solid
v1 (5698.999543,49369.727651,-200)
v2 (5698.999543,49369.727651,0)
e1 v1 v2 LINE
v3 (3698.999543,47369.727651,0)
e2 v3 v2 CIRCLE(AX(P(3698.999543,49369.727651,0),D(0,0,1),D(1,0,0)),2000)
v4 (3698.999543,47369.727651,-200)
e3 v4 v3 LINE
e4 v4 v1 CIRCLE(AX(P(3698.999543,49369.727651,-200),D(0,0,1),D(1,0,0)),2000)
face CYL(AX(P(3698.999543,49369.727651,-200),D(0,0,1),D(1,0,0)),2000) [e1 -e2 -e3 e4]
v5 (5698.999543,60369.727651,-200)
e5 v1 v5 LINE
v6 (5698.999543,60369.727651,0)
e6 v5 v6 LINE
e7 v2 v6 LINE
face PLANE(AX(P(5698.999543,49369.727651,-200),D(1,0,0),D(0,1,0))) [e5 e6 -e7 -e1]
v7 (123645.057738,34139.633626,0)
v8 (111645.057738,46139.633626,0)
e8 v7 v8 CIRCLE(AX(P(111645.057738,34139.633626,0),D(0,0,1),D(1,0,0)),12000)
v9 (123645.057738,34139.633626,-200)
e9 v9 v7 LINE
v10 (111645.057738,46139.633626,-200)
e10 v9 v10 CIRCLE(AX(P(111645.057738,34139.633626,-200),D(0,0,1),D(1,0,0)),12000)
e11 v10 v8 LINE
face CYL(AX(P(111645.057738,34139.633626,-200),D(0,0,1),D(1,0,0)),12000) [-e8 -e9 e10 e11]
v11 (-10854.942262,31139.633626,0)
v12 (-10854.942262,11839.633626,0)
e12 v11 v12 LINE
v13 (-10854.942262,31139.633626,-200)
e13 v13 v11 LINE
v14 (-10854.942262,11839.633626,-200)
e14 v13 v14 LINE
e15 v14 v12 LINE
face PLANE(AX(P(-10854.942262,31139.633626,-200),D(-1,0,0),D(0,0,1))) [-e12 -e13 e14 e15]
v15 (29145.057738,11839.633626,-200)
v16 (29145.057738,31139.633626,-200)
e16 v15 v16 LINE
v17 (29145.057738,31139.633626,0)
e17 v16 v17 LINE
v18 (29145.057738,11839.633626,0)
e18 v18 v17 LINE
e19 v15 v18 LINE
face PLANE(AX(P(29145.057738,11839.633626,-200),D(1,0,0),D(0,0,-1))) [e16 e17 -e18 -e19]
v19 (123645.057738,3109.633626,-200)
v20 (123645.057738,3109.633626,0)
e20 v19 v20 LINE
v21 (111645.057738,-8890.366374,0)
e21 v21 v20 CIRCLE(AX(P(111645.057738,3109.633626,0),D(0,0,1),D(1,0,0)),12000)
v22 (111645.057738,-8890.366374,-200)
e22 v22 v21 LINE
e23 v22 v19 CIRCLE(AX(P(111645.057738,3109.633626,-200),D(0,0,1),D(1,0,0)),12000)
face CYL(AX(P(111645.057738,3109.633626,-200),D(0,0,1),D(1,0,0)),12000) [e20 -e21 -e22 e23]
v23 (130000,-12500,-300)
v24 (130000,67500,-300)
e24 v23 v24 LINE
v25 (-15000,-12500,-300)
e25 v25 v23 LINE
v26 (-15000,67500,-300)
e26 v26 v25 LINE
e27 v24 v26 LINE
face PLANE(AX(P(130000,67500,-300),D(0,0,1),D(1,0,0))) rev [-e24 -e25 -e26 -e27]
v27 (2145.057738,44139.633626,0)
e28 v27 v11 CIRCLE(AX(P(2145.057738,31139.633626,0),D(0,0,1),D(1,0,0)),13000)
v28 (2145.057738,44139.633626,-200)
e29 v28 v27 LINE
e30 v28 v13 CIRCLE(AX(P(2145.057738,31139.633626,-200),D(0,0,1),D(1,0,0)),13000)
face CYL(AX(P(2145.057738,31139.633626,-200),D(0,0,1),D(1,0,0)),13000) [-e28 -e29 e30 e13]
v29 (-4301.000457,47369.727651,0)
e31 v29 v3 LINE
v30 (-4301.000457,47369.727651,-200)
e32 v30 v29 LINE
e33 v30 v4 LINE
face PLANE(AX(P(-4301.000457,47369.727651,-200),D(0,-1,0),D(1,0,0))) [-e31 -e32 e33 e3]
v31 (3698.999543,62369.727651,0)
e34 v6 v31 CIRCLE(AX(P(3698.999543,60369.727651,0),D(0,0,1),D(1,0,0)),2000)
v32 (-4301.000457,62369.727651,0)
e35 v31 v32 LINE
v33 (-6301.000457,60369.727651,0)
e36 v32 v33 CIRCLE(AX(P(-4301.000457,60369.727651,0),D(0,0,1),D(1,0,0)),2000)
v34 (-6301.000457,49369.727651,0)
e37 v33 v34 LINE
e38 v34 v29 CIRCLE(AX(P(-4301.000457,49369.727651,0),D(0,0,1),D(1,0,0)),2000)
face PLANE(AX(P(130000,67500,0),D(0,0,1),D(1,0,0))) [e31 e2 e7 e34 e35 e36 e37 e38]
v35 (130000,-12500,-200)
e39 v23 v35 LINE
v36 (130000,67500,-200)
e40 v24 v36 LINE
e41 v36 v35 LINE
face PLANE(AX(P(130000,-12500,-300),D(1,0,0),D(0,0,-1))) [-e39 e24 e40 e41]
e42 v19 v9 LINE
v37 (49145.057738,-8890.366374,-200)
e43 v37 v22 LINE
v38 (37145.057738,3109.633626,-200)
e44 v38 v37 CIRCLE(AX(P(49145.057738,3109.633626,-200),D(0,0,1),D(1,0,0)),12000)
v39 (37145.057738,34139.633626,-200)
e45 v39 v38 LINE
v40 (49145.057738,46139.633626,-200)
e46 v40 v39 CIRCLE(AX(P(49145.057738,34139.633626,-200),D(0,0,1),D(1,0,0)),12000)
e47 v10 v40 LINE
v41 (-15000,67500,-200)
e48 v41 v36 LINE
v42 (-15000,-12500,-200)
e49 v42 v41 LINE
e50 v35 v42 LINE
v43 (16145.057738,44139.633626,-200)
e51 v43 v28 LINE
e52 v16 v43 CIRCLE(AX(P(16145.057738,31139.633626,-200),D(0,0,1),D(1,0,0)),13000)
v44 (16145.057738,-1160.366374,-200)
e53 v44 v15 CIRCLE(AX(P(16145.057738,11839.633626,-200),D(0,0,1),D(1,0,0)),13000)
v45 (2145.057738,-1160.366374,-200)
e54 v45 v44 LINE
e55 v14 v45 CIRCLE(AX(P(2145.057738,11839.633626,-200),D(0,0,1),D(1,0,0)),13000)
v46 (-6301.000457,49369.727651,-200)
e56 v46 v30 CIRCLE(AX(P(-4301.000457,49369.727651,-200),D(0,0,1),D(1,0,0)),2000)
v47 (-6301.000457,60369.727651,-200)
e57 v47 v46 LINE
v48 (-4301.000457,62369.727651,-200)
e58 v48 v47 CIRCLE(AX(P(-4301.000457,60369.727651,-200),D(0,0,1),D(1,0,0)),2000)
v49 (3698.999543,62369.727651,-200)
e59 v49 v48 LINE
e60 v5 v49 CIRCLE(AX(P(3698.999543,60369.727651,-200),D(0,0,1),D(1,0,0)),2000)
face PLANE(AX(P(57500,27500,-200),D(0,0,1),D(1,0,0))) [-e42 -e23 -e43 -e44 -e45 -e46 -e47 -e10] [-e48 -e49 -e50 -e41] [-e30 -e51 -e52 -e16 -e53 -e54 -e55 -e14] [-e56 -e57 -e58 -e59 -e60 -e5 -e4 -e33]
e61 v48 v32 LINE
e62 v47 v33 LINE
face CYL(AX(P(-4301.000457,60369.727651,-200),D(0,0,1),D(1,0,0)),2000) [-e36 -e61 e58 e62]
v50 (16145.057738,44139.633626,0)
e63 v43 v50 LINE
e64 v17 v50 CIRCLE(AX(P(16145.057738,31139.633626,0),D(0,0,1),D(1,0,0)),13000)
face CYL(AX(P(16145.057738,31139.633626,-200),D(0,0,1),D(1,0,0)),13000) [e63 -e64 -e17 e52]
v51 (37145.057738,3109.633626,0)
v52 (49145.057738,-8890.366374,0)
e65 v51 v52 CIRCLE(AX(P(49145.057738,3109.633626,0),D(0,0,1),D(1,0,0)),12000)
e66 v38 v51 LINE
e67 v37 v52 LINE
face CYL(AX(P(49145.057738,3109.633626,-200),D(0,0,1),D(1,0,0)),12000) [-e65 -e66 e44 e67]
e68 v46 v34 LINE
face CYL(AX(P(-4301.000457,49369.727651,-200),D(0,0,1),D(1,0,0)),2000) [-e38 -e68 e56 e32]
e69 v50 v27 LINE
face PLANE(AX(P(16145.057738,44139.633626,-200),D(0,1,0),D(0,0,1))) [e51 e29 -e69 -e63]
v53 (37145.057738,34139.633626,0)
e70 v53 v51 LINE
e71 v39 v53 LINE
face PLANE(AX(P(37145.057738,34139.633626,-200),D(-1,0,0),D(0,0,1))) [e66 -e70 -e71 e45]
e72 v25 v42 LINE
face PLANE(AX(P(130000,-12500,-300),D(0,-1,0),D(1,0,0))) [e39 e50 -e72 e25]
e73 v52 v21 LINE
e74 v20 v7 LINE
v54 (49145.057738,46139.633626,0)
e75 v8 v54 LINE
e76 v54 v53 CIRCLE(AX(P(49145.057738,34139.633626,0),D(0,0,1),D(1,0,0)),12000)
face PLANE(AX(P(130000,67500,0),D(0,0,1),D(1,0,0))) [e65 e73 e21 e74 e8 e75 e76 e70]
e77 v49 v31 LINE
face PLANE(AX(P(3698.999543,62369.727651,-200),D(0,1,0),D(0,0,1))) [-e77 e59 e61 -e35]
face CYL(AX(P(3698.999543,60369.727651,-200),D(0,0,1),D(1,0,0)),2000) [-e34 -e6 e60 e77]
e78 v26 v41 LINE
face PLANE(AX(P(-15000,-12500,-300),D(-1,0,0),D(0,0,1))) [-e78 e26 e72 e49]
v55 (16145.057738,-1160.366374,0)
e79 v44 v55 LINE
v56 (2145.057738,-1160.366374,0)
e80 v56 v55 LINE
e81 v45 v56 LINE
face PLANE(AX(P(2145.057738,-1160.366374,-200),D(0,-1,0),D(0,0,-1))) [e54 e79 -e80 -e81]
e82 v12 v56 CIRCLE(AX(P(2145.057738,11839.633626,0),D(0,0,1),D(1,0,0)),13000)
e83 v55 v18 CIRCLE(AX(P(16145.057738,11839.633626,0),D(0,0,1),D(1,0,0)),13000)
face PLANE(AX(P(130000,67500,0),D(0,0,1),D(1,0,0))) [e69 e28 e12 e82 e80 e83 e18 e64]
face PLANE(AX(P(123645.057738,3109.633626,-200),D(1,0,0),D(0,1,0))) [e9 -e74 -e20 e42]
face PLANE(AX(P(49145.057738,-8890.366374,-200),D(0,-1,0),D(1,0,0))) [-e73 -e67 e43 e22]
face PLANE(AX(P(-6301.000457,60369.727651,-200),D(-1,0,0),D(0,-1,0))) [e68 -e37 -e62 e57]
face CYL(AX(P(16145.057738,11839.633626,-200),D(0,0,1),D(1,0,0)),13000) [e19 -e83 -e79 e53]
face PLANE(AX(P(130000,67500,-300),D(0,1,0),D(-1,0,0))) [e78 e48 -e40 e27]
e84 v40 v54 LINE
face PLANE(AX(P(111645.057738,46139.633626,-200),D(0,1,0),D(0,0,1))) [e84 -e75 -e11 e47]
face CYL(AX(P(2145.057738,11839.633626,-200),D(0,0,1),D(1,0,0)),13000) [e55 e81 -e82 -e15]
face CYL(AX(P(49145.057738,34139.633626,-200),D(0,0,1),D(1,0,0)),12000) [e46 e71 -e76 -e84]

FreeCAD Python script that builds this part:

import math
import FreeCAD as App
import Part
import Sketcher

V = App.Vector
Q = App.Units.Quantity


def add_polygon(sketch, points):
    """Adds a closed chain of lines whose ends are joined by coincident constraints."""
    first, n = sketch.GeometryCount, len(points)
    for a, b in zip(points, points[1:] + points[:1]):
        sketch.addGeometry(Part.LineSegment(App.Vector(*a, 0), App.Vector(*b, 0)), False)
    for i in range(n):
        sketch.addConstraint(Sketcher.Constraint("Coincident", first + i, 2, first + (i + 1) % n, 1))

doc = App.newDocument("Part")
params = doc.addObject("Spreadsheet::Sheet", "Params")
for row, (alias, value) in enumerate([
    ("sketch1_width", "145000 mm"),
    ("sketch1_height", "80000 mm"),
    ("pad1_length", "300 mm"),
    ("sketch2_radius", "13000 mm"),
    ("sketch2_radius2", "12000 mm"),
    ("sketch2_radius3", "2000 mm"),
    ("sketch2_width", "14000 mm"),
    ("sketch2_width2", "62500 mm"),
    ("pocket1_length", "200 mm"),
], start=1):
    params.set(f"A{row}", alias)
    params.set(f"B{row}", "=" + value)
    params.setAlias(f"B{row}", alias)

body = doc.addObject("PartDesign::Body", "Body")

# Sketch on XY plane
sketch1 = doc.addObject("Sketcher::SketchObject", "Sketch")
body.addObject(sketch1)
sketch1.AttachmentSupport = (doc.XY_Plane, [""])
sketch1.MapMode = "FlatFace"
add_polygon(sketch1, [(-15000, 67500), (-15000, -12500), (130000, -12500), (130000, 67500)])  # lines 0-3
sketch1.addConstraint([
    Sketcher.Constraint("Vertical", 0),
    Sketcher.Constraint("Horizontal", 1),
    Sketcher.Constraint("Vertical", 2),
    Sketcher.Constraint("Horizontal", 3),
    Sketcher.Constraint("DistanceX", 1, 1, 1, 2, Q("145000 mm")),
    Sketcher.Constraint("DistanceY", 0, 2, 0, 1, Q("80000 mm")),
    Sketcher.Constraint("DistanceX", 0, 2, -1, 1, Q("15000 mm")),
    Sketcher.Constraint("DistanceY", 0, 2, -1, 1, Q("12500 mm")),
])
sketch1.setExpression("Constraints[8]", "Params.sketch1_width")
sketch1.setExpression("Constraints[9]", "Params.sketch1_height")
pad1 = doc.addObject("PartDesign::Pad", "Pad")
body.addObject(pad1)
pad1.Profile = sketch1
pad1.setExpression("Length", "Params.pad1_length")
pad1.Reversed = True

# Sketch on XY plane
sketch2 = doc.addObject("Sketcher::SketchObject", "Sketch001")
body.addObject(sketch2)
sketch2.AttachmentSupport = (doc.XY_Plane, [""])
sketch2.MapMode = "FlatFace"
add_polygon(sketch2, [(-31562, 84062), (-31562, -29062), (146562, -29062), (146562, 84062)])  # lines 0-3
sketch2.addGeometry(Part.LineSegment(V(2145, 44140, 0), V(16145, 44140, 0)), False)  # 4
sketch2.addGeometry(Part.ArcOfCircle(Part.Circle(V(16145, 31140, 0), V(0, 0, 1), 13000), math.radians(0), math.radians(90)), False)  # 5
sketch2.addGeometry(Part.LineSegment(V(29145, 31140, 0), V(29145, 11840, 0)), False)  # 6
sketch2.addGeometry(Part.ArcOfCircle(Part.Circle(V(16145, 11840, 0), V(0, 0, 1), 13000), math.radians(-90), math.radians(0)), False)  # 7
sketch2.addGeometry(Part.LineSegment(V(16145, -1160, 0), V(2145, -1160, 0)), False)  # 8
sketch2.addGeometry(Part.ArcOfCircle(Part.Circle(V(2145, 11840, 0), V(0, 0, 1), 13000), math.radians(180), math.radians(270)), False)  # 9
sketch2.addGeometry(Part.LineSegment(V(-10855, 11840, 0), V(-10855, 31140, 0)), False)  # 10
sketch2.addGeometry(Part.ArcOfCircle(Part.Circle(V(2145, 31140, 0), V(0, 0, 1), 13000), math.radians(90), math.radians(180)), False)  # 11
sketch2.addGeometry(Part.LineSegment(V(37145, 3110, 0), V(37145, 34140, 0)), False)  # 12
sketch2.addGeometry(Part.ArcOfCircle(Part.Circle(V(49145, 34140, 0), V(0, 0, 1), 12000), math.radians(90), math.radians(180)), False)  # 13
sketch2.addGeometry(Part.LineSegment(V(49145, 46140, 0), V(111645, 46140, 0)), False)  # 14
sketch2.addGeometry(Part.ArcOfCircle(Part.Circle(V(111645, 34140, 0), V(0, 0, 1), 12000), math.radians(0), math.radians(90)), False)  # 15
sketch2.addGeometry(Part.LineSegment(V(123645, 34140, 0), V(123645, 3110, 0)), False)  # 16
sketch2.addGeometry(Part.ArcOfCircle(Part.Circle(V(111645, 3110, 0), V(0, 0, 1), 12000), math.radians(-90), math.radians(0)), False)  # 17
sketch2.addGeometry(Part.LineSegment(V(111645, -8890, 0), V(49145, -8890, 0)), False)  # 18
sketch2.addGeometry(Part.ArcOfCircle(Part.Circle(V(49145, 3110, 0), V(0, 0, 1), 12000), math.radians(180), math.radians(270)), False)  # 19
sketch2.addGeometry(Part.LineSegment(V(-6301, 49370, 0), V(-6301, 60370, 0)), False)  # 20
sketch2.addGeometry(Part.ArcOfCircle(Part.Circle(V(-4301, 60370, 0), V(0, 0, 1), 2000), math.radians(90), math.radians(180)), False)  # 21
sketch2.addGeometry(Part.LineSegment(V(-4301, 62370, 0), V(3699, 62370, 0)), False)  # 22
sketch2.addGeometry(Part.ArcOfCircle(Part.Circle(V(3699, 60370, 0), V(0, 0, 1), 2000), math.radians(0), math.radians(90)), False)  # 23
sketch2.addGeometry(Part.LineSegment(V(5699, 60370, 0), V(5699, 49370, 0)), False)  # 24
sketch2.addGeometry(Part.ArcOfCircle(Part.Circle(V(3699, 49370, 0), V(0, 0, 1), 2000), math.radians(-90), math.radians(0)), False)  # 25
sketch2.addGeometry(Part.LineSegment(V(3699, 47370, 0), V(-4301, 47370, 0)), False)  # 26
sketch2.addGeometry(Part.ArcOfCircle(Part.Circle(V(-4301, 49370, 0), V(0, 0, 1), 2000), math.radians(180), math.radians(270)), False)  # 27
sketch2.addConstraint([
    Sketcher.Constraint("Coincident", 4, 2, 5, 2),
    Sketcher.Constraint("Coincident", 5, 1, 6, 1),
    Sketcher.Constraint("Coincident", 6, 2, 7, 2),
    Sketcher.Constraint("Coincident", 7, 1, 8, 1),
    Sketcher.Constraint("Coincident", 8, 2, 9, 2),
    Sketcher.Constraint("Coincident", 9, 1, 10, 1),
    Sketcher.Constraint("Coincident", 10, 2, 11, 2),
    Sketcher.Constraint("Coincident", 11, 1, 4, 1),
    Sketcher.Constraint("Coincident", 12, 2, 13, 2),
    Sketcher.Constraint("Coincident", 13, 1, 14, 1),
    Sketcher.Constraint("Coincident", 14, 2, 15, 2),
    Sketcher.Constraint("Coincident", 15, 1, 16, 1),
    Sketcher.Constraint("Coincident", 16, 2, 17, 2),
    Sketcher.Constraint("Coincident", 17, 1, 18, 1),
    Sketcher.Constraint("Coincident", 18, 2, 19, 2),
    Sketcher.Constraint("Coincident", 19, 1, 12, 1),
    Sketcher.Constraint("Coincident", 20, 2, 21, 2),
    Sketcher.Constraint("Coincident", 21, 1, 22, 1),
    Sketcher.Constraint("Coincident", 22, 2, 23, 2),
    Sketcher.Constraint("Coincident", 23, 1, 24, 1),
    Sketcher.Constraint("Coincident", 24, 2, 25, 2),
    Sketcher.Constraint("Coincident", 25, 1, 26, 1),
    Sketcher.Constraint("Coincident", 26, 2, 27, 2),
    Sketcher.Constraint("Coincident", 27, 1, 20, 1),
    Sketcher.Constraint("Vertical", 0),
    Sketcher.Constraint("Horizontal", 1),
    Sketcher.Constraint("Vertical", 2),
    Sketcher.Constraint("Horizontal", 3),
    Sketcher.Constraint("Horizontal", 4),
    Sketcher.Constraint("Vertical", 6),
    Sketcher.Constraint("Horizontal", 8),
    Sketcher.Constraint("Vertical", 10),
    Sketcher.Constraint("Vertical", 12),
    Sketcher.Constraint("Horizontal", 14),
    Sketcher.Constraint("Vertical", 16),
    Sketcher.Constraint("Horizontal", 18),
    Sketcher.Constraint("Vertical", 20),
    Sketcher.Constraint("Horizontal", 22),
    Sketcher.Constraint("Vertical", 24),
    Sketcher.Constraint("Horizontal", 26),
    Sketcher.Constraint("Equal", 5, 7),
    Sketcher.Constraint("Equal", 7, 9),
    Sketcher.Constraint("Equal", 9, 11),
    Sketcher.Constraint("Equal", 13, 15),
    Sketcher.Constraint("Equal", 15, 17),
    Sketcher.Constraint("Equal", 17, 19),
    Sketcher.Constraint("Equal", 21, 23),
    Sketcher.Constraint("Equal", 23, 25),
    Sketcher.Constraint("Equal", 25, 27),
    Sketcher.Constraint("Horizontal", 9, 3, 6, 2),
    Sketcher.Constraint("Horizontal", 15, 3, 12, 2),
    Sketcher.Constraint("Horizontal", 19, 3, 16, 2),
    Sketcher.Constraint("Horizontal", 23, 3, 20, 2),
    Sketcher.Constraint("Horizontal", 27, 3, 24, 2),
    Sketcher.Constraint("Vertical", 7, 3, 4, 2),
    Sketcher.Constraint("Vertical", 11, 3, 8, 2),
    Sketcher.Constraint("Vertical", 17, 3, 14, 2),
    Sketcher.Constraint("Vertical", 25, 3, 22, 2),
    Sketcher.Constraint("Equal", 4, 8),
    Sketcher.Constraint("Equal", 14, 18),
    Sketcher.Constraint("Equal", 22, 26),
    Sketcher.Constraint("Equal", 6, 10),
    Sketcher.Constraint("Equal", 12, 16),
    Sketcher.Constraint("Equal", 20, 24),
    Sketcher.Constraint("Radius", 5, Q("13000 mm")),
    Sketcher.Constraint("Radius", 13, Q("12000 mm")),
    Sketcher.Constraint("Radius", 21, Q("2000 mm")),
    Sketcher.Constraint("DistanceX", 4, 1, 4, 2, Q("14000 mm")),
    Sketcher.Constraint("DistanceX", 14, 1, 14, 2, Q("62500 mm")),
    Sketcher.Constraint("DistanceX", 22, 1, 22, 2, Q("8000 mm")),
    Sketcher.Constraint("DistanceY", 6, 2, 6, 1, Q("19300 mm")),
    Sketcher.Constraint("DistanceY", 12, 1, 12, 2, Q("31030 mm")),
    Sketcher.Constraint("DistanceY", 20, 1, 20, 2, Q("11000 mm")),
    Sketcher.Constraint("DistanceY", 7, 3, 5, 3, Q("19300 mm")),
    Sketcher.Constraint("DistanceX", 9, 3, 7, 3, Q("14000 mm")),
    Sketcher.Constraint("DistanceX", 5, 3, 13, 3, Q("33000 mm")),
    Sketcher.Constraint("DistanceY", 5, 3, 13, 3, Q("3000 mm")),
    Sketcher.Constraint("DistanceX", 13, 3, 15, 3, Q("62500 mm")),
    Sketcher.Constraint("DistanceY", 17, 3, 15, 3, Q("31030 mm")),
    Sketcher.Constraint("DistanceX", 21, 3, 23, 3, Q("8000 mm")),
    Sketcher.Constraint("DistanceY", 25, 3, 23, 3, Q("11000 mm")),
    Sketcher.Constraint("DistanceY", 9, 3, 10, 2, Q("19300 mm")),
    Sketcher.Constraint("DistanceX", 6, 2, 18, 2, Q("20000 mm")),
    Sketcher.Constraint("DistanceX", 26, 2, 25, 3, Q("8000 mm")),
    Sketcher.Constraint("DistanceX", 1, 1, 1, 2, Q("178123.044 mm")),
    Sketcher.Constraint("DistanceY", 0, 2, 0, 1, Q("113123.044 mm")),
    Sketcher.Constraint("DistanceX", 0, 2, -1, 1, Q("31561.522 mm")),
    Sketcher.Constraint("DistanceY", 0, 2, -1, 1, Q("29061.522 mm")),
    Sketcher.Constraint("DistanceY", -1, 1, 21, 3, Q("60369.727651 mm")),
    Sketcher.Constraint("DistanceX", -1, 1, 5, 3, Q("16145.057738 mm")),
    Sketcher.Constraint("DistanceY", -1, 1, 5, 3, Q("31139.633626 mm")),
    Sketcher.Constraint("DistanceX", 21, 3, -1, 1, Q("4301.000457 mm")),
])
sketch2.setExpression("Constraints[68]", "Params.sketch2_radius")
sketch2.setExpression("Constraints[69]", "Params.sketch2_radius2")
sketch2.setExpression("Constraints[70]", "Params.sketch2_radius3")
sketch2.setExpression("Constraints[71]", "Params.sketch2_width")
sketch2.setExpression("Constraints[72]", "Params.sketch2_width2")
pocket1 = doc.addObject("PartDesign::Pocket", "Pocket")
body.addObject(pocket1)
pocket1.Profile = sketch2
pocket1.setExpression("Length", "Params.pocket1_length")

doc.recompute()
